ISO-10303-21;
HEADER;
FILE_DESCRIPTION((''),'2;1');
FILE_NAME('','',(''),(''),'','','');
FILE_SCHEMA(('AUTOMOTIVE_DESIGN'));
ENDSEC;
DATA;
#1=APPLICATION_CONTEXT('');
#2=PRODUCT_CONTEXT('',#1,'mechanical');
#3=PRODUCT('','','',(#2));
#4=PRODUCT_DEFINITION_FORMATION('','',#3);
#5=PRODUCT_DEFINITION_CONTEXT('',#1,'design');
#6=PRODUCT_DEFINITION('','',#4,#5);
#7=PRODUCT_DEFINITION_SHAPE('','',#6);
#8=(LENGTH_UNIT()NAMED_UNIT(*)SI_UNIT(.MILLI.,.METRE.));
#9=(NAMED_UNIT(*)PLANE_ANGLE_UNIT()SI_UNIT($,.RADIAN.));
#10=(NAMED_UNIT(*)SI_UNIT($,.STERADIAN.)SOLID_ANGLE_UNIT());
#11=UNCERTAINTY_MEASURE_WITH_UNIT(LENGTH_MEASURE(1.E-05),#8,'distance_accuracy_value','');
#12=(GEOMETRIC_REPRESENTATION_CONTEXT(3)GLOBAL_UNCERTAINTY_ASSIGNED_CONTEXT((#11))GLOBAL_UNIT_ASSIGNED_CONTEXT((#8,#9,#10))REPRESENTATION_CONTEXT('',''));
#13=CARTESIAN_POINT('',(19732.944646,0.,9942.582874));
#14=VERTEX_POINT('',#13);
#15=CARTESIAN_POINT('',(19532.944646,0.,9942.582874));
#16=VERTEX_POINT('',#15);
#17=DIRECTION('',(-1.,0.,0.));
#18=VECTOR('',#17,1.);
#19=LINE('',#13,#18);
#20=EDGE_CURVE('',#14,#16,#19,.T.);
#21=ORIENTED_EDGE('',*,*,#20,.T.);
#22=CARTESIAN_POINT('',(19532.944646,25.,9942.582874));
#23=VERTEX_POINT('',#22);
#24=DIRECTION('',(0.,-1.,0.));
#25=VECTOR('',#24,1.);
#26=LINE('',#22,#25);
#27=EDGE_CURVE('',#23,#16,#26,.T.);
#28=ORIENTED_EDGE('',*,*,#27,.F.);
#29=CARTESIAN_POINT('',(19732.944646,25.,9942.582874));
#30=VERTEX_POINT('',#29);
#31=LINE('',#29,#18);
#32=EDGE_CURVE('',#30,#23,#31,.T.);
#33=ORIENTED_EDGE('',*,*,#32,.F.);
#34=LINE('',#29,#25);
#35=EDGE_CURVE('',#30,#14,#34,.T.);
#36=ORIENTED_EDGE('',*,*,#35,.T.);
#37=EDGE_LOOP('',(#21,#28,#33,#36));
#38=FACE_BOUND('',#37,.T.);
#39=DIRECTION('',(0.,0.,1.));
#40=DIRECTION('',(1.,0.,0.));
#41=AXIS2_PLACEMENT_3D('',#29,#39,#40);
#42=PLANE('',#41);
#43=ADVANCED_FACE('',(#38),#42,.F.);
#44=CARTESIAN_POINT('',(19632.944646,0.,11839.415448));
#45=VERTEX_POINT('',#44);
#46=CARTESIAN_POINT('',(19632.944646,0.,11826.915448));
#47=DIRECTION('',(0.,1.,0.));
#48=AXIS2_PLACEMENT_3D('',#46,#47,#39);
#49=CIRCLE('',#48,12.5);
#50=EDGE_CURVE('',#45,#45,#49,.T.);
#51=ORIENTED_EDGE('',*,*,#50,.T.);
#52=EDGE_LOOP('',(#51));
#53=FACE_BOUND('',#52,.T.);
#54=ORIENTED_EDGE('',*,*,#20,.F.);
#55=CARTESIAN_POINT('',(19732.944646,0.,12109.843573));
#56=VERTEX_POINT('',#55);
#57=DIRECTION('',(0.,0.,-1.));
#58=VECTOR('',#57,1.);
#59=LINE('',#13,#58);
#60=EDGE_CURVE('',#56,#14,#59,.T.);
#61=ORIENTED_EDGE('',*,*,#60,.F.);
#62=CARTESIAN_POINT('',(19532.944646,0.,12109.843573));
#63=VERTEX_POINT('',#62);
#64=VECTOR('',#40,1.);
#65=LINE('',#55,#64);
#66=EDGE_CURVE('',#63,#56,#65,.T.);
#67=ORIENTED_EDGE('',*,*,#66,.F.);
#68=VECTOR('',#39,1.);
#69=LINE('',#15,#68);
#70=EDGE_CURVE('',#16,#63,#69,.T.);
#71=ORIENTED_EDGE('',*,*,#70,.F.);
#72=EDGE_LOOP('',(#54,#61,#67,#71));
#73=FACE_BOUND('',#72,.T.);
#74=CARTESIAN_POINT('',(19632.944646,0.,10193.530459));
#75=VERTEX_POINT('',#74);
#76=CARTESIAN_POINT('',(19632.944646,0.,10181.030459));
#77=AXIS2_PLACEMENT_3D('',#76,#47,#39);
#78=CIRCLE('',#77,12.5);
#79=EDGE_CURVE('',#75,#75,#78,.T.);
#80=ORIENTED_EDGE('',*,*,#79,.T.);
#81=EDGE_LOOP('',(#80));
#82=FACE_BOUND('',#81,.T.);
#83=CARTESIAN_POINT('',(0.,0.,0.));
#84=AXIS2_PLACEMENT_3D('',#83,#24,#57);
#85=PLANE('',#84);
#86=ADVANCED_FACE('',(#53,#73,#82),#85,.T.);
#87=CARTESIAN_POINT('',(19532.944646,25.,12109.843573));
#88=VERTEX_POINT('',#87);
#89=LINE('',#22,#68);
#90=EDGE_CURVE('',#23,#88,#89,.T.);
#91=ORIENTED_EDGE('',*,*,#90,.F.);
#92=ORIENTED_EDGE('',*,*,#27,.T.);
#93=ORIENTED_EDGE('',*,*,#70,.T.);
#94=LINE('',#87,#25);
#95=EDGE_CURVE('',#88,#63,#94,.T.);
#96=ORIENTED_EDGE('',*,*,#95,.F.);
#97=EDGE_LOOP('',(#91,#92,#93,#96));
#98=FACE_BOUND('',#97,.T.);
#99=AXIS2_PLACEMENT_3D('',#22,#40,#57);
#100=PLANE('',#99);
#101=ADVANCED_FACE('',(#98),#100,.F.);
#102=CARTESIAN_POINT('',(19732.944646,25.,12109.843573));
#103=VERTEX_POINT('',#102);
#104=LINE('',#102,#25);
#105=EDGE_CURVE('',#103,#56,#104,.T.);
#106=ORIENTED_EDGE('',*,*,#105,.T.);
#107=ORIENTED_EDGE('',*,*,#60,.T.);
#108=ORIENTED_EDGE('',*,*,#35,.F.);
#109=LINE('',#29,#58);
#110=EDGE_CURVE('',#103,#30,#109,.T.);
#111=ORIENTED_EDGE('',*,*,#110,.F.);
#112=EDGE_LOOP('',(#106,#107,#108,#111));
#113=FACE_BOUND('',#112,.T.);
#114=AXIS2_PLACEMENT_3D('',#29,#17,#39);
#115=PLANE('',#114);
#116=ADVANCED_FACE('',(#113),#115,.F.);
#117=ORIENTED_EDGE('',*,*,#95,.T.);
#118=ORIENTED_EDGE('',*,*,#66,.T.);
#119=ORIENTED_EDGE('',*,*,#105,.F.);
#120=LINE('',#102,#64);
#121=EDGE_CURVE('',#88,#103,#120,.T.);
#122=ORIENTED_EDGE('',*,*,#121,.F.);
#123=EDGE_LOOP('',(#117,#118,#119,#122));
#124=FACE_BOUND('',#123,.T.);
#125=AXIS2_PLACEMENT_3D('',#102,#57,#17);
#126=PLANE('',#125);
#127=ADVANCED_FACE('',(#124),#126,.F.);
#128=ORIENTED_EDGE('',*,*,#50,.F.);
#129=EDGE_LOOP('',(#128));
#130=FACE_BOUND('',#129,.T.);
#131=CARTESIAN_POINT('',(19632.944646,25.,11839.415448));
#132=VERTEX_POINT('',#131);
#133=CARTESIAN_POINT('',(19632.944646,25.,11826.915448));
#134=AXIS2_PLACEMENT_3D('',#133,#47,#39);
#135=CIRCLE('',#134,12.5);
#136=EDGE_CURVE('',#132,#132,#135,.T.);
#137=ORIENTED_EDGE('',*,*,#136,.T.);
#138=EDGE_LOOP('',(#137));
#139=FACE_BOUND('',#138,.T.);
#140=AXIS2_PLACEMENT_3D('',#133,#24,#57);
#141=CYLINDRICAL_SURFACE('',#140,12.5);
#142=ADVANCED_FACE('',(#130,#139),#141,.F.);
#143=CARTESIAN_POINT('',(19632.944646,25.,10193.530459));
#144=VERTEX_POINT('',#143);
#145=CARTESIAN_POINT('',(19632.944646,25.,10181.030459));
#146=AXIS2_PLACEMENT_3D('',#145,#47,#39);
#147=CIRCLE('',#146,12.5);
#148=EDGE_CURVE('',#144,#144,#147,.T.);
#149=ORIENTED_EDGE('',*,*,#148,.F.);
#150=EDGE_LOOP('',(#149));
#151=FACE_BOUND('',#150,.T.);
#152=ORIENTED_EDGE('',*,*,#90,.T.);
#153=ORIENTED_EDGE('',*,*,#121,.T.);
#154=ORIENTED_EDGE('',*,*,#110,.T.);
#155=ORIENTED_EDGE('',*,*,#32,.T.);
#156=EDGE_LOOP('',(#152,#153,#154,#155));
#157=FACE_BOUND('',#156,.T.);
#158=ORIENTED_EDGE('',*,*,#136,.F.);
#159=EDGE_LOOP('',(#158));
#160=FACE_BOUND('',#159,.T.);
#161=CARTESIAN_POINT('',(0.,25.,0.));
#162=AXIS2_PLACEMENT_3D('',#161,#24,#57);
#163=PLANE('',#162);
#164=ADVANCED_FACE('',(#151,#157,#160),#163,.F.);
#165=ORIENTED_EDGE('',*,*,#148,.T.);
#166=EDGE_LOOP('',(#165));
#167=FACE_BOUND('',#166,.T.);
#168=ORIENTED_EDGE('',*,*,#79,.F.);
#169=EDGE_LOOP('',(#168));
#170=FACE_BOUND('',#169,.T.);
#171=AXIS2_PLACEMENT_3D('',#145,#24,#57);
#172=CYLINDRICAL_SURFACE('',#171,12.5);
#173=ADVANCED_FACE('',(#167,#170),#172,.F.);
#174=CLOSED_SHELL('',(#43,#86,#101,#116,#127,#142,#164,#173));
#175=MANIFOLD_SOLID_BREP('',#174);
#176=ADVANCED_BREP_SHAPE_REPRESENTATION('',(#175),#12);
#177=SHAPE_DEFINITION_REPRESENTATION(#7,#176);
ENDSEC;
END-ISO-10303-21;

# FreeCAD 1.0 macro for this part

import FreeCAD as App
import Part
import Sketcher

V = App.Vector

doc = App.newDocument("Part")
params = doc.addObject("Spreadsheet::Sheet", "Params")
for row, (alias, value) in enumerate([
    ("sketch1_diameter", "25 mm"),
    ("sketch1_width", "200 mm"),
    ("pad1_length", "25 mm"),
    ("sketch2_diameter", "25 mm"),
    ("sketch2_width", "200 mm"),
    ("pad2_length", "25 mm"),
    ("sketch3_diameter", "25 mm"),
    ("sketch3_width", "200 mm"),
    ("pad3_length", "25 mm"),
    ("sketch4_diameter", "25 mm"),
    ("sketch4_width", "200 mm"),
    ("pad4_length", "25 mm"),
    ("sketch5_diameter", "25 mm"),
    ("sketch5_width", "200 mm"),
    ("pad5_length", "25 mm"),
    ("pad6_length", "26 mm"),
], start=1):
    params.set(f"A{row}", alias)
    params.set(f"B{row}", "=" + value)
    params.setAlias(f"B{row}", alias)

body = doc.addObject("PartDesign::Body", "Body")

sketch1 = body.newObject("Sketcher::SketchObject", "Sketch")
sketch1.AttachmentSupport = (doc.getObject("XZ_Plane"), [""])
sketch1.MapMode = "FlatFace"
sketch1.addGeometry([
    Part.LineSegment(V(23033, 9943, 0), V(23033, 12876, 0)),
    Part.LineSegment(V(23033, 12876, 0), V(23233, 12876, 0)),
    Part.LineSegment(V(23233, 12876, 0), V(23233, 9943, 0)),
    Part.LineSegment(V(23233, 9943, 0), V(23033, 9943, 0)),
    Part.Circle(V(23133, 12678, 0), V(0, 0, 1), 12),
    Part.Circle(V(23133, 10181, 0), V(0, 0, 1), 12),
], False)
sketch1.addConstraint([
    Sketcher.Constraint("Coincident", 0, 2, 1, 1),
    Sketcher.Constraint("Coincident", 1, 2, 2, 1),
    Sketcher.Constraint("Coincident", 2, 2, 3, 1),
    Sketcher.Constraint("Coincident", 3, 2, 0, 1),
    Sketcher.Constraint("Vertical", 0),
    Sketcher.Constraint("Horizontal", 1),
    Sketcher.Constraint("Vertical", 2),
    Sketcher.Constraint("Horizontal", 3),
    Sketcher.Constraint("Equal", 4, 5),
    Sketcher.Constraint("Vertical", 4, 3, 5, 3),
    Sketcher.Constraint("Diameter", 4, 25.0),
    Sketcher.Constraint("DistanceX", 1, 1, 1, 2, 200.0),
    Sketcher.Constraint("DistanceX", 0, 2, 4, 3, 100.0),
    Sketcher.Constraint("DistanceY", 0, 1, 0, 2, 2933.573874),
    Sketcher.Constraint("DistanceY", -1, 1, 5, 3, 10181.030459),
    Sketcher.Constraint("DistanceY", -1, 1, 0, 2, 12876.156748),
    Sketcher.Constraint("DistanceY", 2, 2, 4, 3, 2735.506741),
    Sketcher.Constraint("DistanceX", -1, 1, 4, 3, 23132.944646),
])
sketch1.setExpression("Constraints[10]", "Params.sketch1_diameter")
sketch1.setExpression("Constraints[11]", "Params.sketch1_width")
pad1 = body.newObject("PartDesign::Pad", "Pad")
pad1.Profile = sketch1
pad1.setExpression("Length", "Params.pad1_length")
pad1.Reversed = True
body2 = doc.addObject("PartDesign::Body", "Body001")

sketch2 = body2.newObject("Sketcher::SketchObject", "Sketch001")
sketch2.AttachmentSupport = (doc.getObject("XZ_Plane001"), [""])
sketch2.MapMode = "FlatFace"
sketch2.addGeometry([
    Part.LineSegment(V(21933, 9943, 0), V(21933, 12834, 0)),
    Part.LineSegment(V(21933, 12834, 0), V(22133, 12834, 0)),
    Part.LineSegment(V(22133, 12834, 0), V(22133, 9943, 0)),
    Part.LineSegment(V(22133, 9943, 0), V(21933, 9943, 0)),
    Part.Circle(V(22033, 12621, 0), V(0, 0, 1), 12),
    Part.Circle(V(22033, 10181, 0), V(0, 0, 1), 12),
], False)
sketch2.addConstraint([
    Sketcher.Constraint("Coincident", 0, 2, 1, 1),
    Sketcher.Constraint("Coincident", 1, 2, 2, 1),
    Sketcher.Constraint("Coincident", 2, 2, 3, 1),
    Sketcher.Constraint("Coincident", 3, 2, 0, 1),
    Sketcher.Constraint("Vertical", 0),
    Sketcher.Constraint("Horizontal", 1),
    Sketcher.Constraint("Vertical", 2),
    Sketcher.Constraint("Horizontal", 3),
    Sketcher.Constraint("Equal", 4, 5),
    Sketcher.Constraint("Vertical", 4, 3, 5, 3),
    Sketcher.Constraint("Diameter", 4, 25.0),
    Sketcher.Constraint("DistanceX", 1, 1, 1, 2, 200.0),
    Sketcher.Constraint("DistanceX", 0, 2, 4, 3, 100.0),
    Sketcher.Constraint("DistanceY", 0, 1, 0, 2, 2891.00092),
    Sketcher.Constraint("DistanceY", -1, 1, 5, 3, 10181.030459),
    Sketcher.Constraint("DistanceY", 4, 3, 0, 2, 212.355509),
    Sketcher.Constraint("DistanceX", -1, 1, 4, 3, 22032.944646),
    Sketcher.Constraint("DistanceY", -1, 1, 4, 3, 12621.228285),
])
sketch2.setExpression("Constraints[10]", "Params.sketch2_diameter")
sketch2.setExpression("Constraints[11]", "Params.sketch2_width")
pad2 = body2.newObject("PartDesign::Pad", "Pad001")
pad2.Profile = sketch2
pad2.setExpression("Length", "Params.pad2_length")
pad2.Reversed = True
body3 = doc.addObject("PartDesign::Body", "Body002")

sketch3 = body3.newObject("Sketcher::SketchObject", "Sketch002")
sketch3.AttachmentSupport = (doc.getObject("XZ_Plane002"), [""])
sketch3.MapMode = "FlatFace"
sketch3.addGeometry([
    Part.LineSegment(V(20733, 9943, 0), V(20733, 12599, 0)),
    Part.LineSegment(V(20733, 12599, 0), V(20933, 12599, 0)),
    Part.LineSegment(V(20933, 12599, 0), V(20933, 9943, 0)),
    Part.LineSegment(V(20933, 9943, 0), V(20733, 9943, 0)),
    Part.Circle(V(20833, 12349, 0), V(0, 0, 1), 12),
    Part.Circle(V(20833, 10181, 0), V(0, 0, 1), 12),
], False)
sketch3.addConstraint([
    Sketcher.Constraint("Coincident", 0, 2, 1, 1),
    Sketcher.Constraint("Coincident", 1, 2, 2, 1),
    Sketcher.Constraint("Coincident", 2, 2, 3, 1),
    Sketcher.Constraint("Coincident", 3, 2, 0, 1),
    Sketcher.Constraint("Vertical", 0),
    Sketcher.Constraint("Horizontal", 1),
    Sketcher.Constraint("Vertical", 2),
    Sketcher.Constraint("Horizontal", 3),
    Sketcher.Constraint("Equal", 4, 5),
    Sketcher.Constraint("Vertical", 4, 3, 5, 3),
    Sketcher.Constraint("Diameter", 4, 25.0),
    Sketcher.Constraint("DistanceX", 1, 1, 1, 2, 200.0),
    Sketcher.Constraint("DistanceX", 0, 2, 4, 3, 100.0),
    Sketcher.Constraint("DistanceY", 0, 1, 0, 2, 2656.849672),
    Sketcher.Constraint("DistanceY", -1, 1, 4, 3, 12348.754241),
    Sketcher.Constraint("DistanceY", -1, 1, 5, 3, 10181.030459),
    Sketcher.Constraint("DistanceX", -1, 1, 4, 3, 20832.944646),
    Sketcher.Constraint("DistanceY", -1, 1, 0, 2, 12599.432546),
])
sketch3.setExpression("Constraints[10]", "Params.sketch3_diameter")
sketch3.setExpression("Constraints[11]", "Params.sketch3_width")
pad3 = body3.newObject("PartDesign::Pad", "Pad002")
pad3.Profile = sketch3
pad3.setExpression("Length", "Params.pad3_length")
pad3.Reversed = True
body4 = doc.addObject("PartDesign::Body", "Body003")

sketch4 = body4.newObject("Sketcher::SketchObject", "Sketch003")
sketch4.AttachmentSupport = (doc.getObject("XZ_Plane003"), [""])
sketch4.MapMode = "FlatFace"
sketch4.addGeometry([
    Part.LineSegment(V(19533, 9943, 0), V(19533, 12110, 0)),
    Part.LineSegment(V(19533, 12110, 0), V(19733, 12110, 0)),
    Part.LineSegment(V(19733, 12110, 0), V(19733, 9943, 0)),
    Part.LineSegment(V(19733, 9943, 0), V(19533, 9943, 0)),
    Part.Circle(V(19633, 11827, 0), V(0, 0, 1), 12),
    Part.Circle(V(19633, 10181, 0), V(0, 0, 1), 12),
], False)
sketch4.addConstraint([
    Sketcher.Constraint("Coincident", 0, 2, 1, 1),
    Sketcher.Constraint("Coincident", 1, 2, 2, 1),
    Sketcher.Constraint("Coincident", 2, 2, 3, 1),
    Sketcher.Constraint("Coincident", 3, 2, 0, 1),
    Sketcher.Constraint("Vertical", 0),
    Sketcher.Constraint("Horizontal", 1),
    Sketcher.Constraint("Vertical", 2),
    Sketcher.Constraint("Horizontal", 3),
    Sketcher.Constraint("Equal", 4, 5),
    Sketcher.Constraint("Vertical", 4, 3, 5, 3),
    Sketcher.Constraint("Diameter", 4, 25.0),
    Sketcher.Constraint("DistanceX", 1, 1, 1, 2, 200.0),
    Sketcher.Constraint("DistanceX", 0, 2, 4, 3, 100.0),
    Sketcher.Constraint("DistanceY", 0, 1, 0, 2, 2167.260699),
    Sketcher.Constraint("DistanceY", -1, 1, 4, 3, 11826.915448),
    Sketcher.Constraint("DistanceY", -1, 1, 5, 3, 10181.030459),
    Sketcher.Constraint("DistanceX", -1, 1, 4, 3, 19632.944646),
    Sketcher.Constraint("DistanceY", -1, 1, 0, 2, 12109.843573),
])
sketch4.setExpression("Constraints[10]", "Params.sketch4_diameter")
sketch4.setExpression("Constraints[11]", "Params.sketch4_width")
pad4 = body4.newObject("PartDesign::Pad", "Pad003")
pad4.Profile = sketch4
pad4.setExpression("Length", "Params.pad4_length")
pad4.Reversed = True
body5 = doc.addObject("PartDesign::Body", "Body004")

sketch5 = body5.newObject("Sketcher::SketchObject", "Sketch004")
sketch5.AttachmentSupport = (doc.getObject("XZ_Plane004"), [""])
sketch5.MapMode = "FlatFace"
sketch5.addGeometry([
    Part.LineSegment(V(18703, 9943, 0), V(18703, 11636, 0)),
    Part.LineSegment(V(18703, 11636, 0), V(18903, 11636, 0)),
    Part.LineSegment(V(18903, 11636, 0), V(18903, 9943, 0)),
    Part.LineSegment(V(18903, 9943, 0), V(18703, 9943, 0)),
    Part.Circle(V(18803, 11284, 0), V(0, 0, 1), 12),
    Part.Circle(V(18803, 10181, 0), V(0, 0, 1), 12),
], False)
sketch5.addConstraint([
    Sketcher.Constraint("Coincident", 0, 2, 1, 1),
    Sketcher.Constraint("Coincident", 1, 2, 2, 1),
    Sketcher.Constraint("Coincident", 2, 2, 3, 1),
    Sketcher.Constraint("Coincident", 3, 2, 0, 1),
    Sketcher.Constraint("Vertical", 0),
    Sketcher.Constraint("Horizontal", 1),
    Sketcher.Constraint("Vertical", 2),
    Sketcher.Constraint("Horizontal", 3),
    Sketcher.Constraint("Equal", 4, 5),
    Sketcher.Constraint("Vertical", 4, 3, 5, 3),
    Sketcher.Constraint("Diameter", 4, 25.0),
    Sketcher.Constraint("DistanceX", 1, 1, 1, 2, 200.0),
    Sketcher.Constraint("DistanceX", 0, 2, 4, 3, 100.0),
    Sketcher.Constraint("DistanceY", 5, 3, 0, 2, 1455.188998),
    Sketcher.Constraint("DistanceY", 0, 1, 0, 2, 1693.636583),
    Sketcher.Constraint("DistanceY", -1, 1, 4, 3, 11283.669779),
    Sketcher.Constraint("DistanceY", -1, 1, 5, 3, 10181.030459),
    Sketcher.Constraint("DistanceX", -1, 1, 4, 3, 18802.944646),
])
sketch5.setExpression("Constraints[10]", "Params.sketch5_diameter")
sketch5.setExpression("Constraints[11]", "Params.sketch5_width")
pad5 = body5.newObject("PartDesign::Pad", "Pad004")
pad5.Profile = sketch5
pad5.setExpression("Length", "Params.pad5_length")
pad5.Reversed = True
body6 = doc.addObject("PartDesign::Body", "Body005")
body6.AllowCompound = True

sketch6 = body6.newObject("Sketcher::SketchObject", "Sketch005")
sketch6.AttachmentSupport = (doc.getObject("XZ_Plane005"), [""])
sketch6.MapMode = "FlatFace"
sketch6.addGeometry([
    Part.LineSegment(V(17795, 8351, 0), V(17795, 13286, 0)),
    Part.LineSegment(V(17795, 13286, 0), V(19135, 13286, 0)),
    Part.LineSegment(V(19135, 13286, 0), V(19135, 8351, 0)),
    Part.LineSegment(V(19135, 8351, 0), V(17795, 8351, 0)),
    Part.LineSegment(V(20051, 7488, 0), V(20051, 14503, 0)),
    Part.LineSegment(V(20051, 14503, 0), V(24898, 14503, 0)),
    Part.LineSegment(V(24898, 14503, 0), V(24898, 7488, 0)),
    Part.LineSegment(V(24898, 7488, 0), V(20051, 7488, 0)),
    Part.LineSegment(V(20721, 13868, 0), V(20228, 13868, 0)),
    Part.LineSegment(V(20228, 13868, 0), V(20228, 12987, 0)),
    Part.LineSegment(V(20228, 12987, 0), V(20721, 12987, 0)),
    Part.LineSegment(V(20721, 12987, 0), V(20721, 13868, 0)),
], False)
sketch6.addConstraint([
    Sketcher.Constraint("Coincident", 0, 2, 1, 1),
    Sketcher.Constraint("Coincident", 1, 2, 2, 1),
    Sketcher.Constraint("Coincident", 2, 2, 3, 1),
    Sketcher.Constraint("Coincident", 3, 2, 0, 1),
    Sketcher.Constraint("Coincident", 4, 2, 5, 1),
    Sketcher.Constraint("Coincident", 5, 2, 6, 1),
    Sketcher.Constraint("Coincident", 6, 2, 7, 1),
    Sketcher.Constraint("Coincident", 7, 2, 4, 1),
    Sketcher.Constraint("Coincident", 8, 2, 9, 1),
    Sketcher.Constraint("Coincident", 9, 2, 10, 1),
    Sketcher.Constraint("Coincident", 10, 2, 11, 1),
    Sketcher.Constraint("Coincident", 11, 2, 8, 1),
    Sketcher.Constraint("Vertical", 0),
    Sketcher.Constraint("Horizontal", 1),
    Sketcher.Constraint("Vertical", 2),
    Sketcher.Constraint("Horizontal", 3),
    Sketcher.Constraint("Vertical", 4),
    Sketcher.Constraint("Horizontal", 5),
    Sketcher.Constraint("Vertical", 6),
    Sketcher.Constraint("Horizontal", 7),
    Sketcher.Constraint("Horizontal", 8),
    Sketcher.Constraint("Vertical", 9),
    Sketcher.Constraint("Horizontal", 10),
    Sketcher.Constraint("Vertical", 11),
    Sketcher.Constraint("DistanceX", 5, 1, 5, 2, 4846.909181),
    Sketcher.Constraint("DistanceX", 8, 2, 8, 1, 493.50348),
    Sketcher.Constraint("DistanceY", 4, 1, 4, 2, 7014.799469),
    Sketcher.Constraint("DistanceY", 1, 2, 8, 2, 581.629102),
    Sketcher.Constraint("DistanceX", 1, 1, 1, 2, 1339.509446),
    Sketcher.Constraint("DistanceY", 0, 1, 0, 2, 4935.034802),
    Sketcher.Constraint("DistanceY", 9, 2, 9, 1, 881.256215),
    Sketcher.Constraint("DistanceY", -1, 1, 0, 2, 13286.445548),
    Sketcher.Constraint("DistanceX", -1, 1, 1, 2, 19134.931719),
    Sketcher.Constraint("DistanceX", 0, 2, 4, 2, 2256.01591),
    Sketcher.Constraint("DistanceY", 2, 2, 4, 2, 6151.168379),
    Sketcher.Constraint("DistanceX", -1, 1, 8, 2, 20227.689425),
])
pad6 = body6.newObject("PartDesign::Pad", "Pad005")
pad6.Profile = sketch6
pad6.setExpression("Length", "Params.pad6_length")
pad6.Reversed = True
doc.recompute()

body7 = doc.addObject("PartDesign::Body", "Body006")
body7.BaseFeature = body6
boolean = body.newObject("PartDesign::Boolean", "Boolean")
boolean.Type = "Cut"
boolean.addObjects([body7])
doc.recompute()

body8 = doc.addObject("PartDesign::Body", "Body007")
body8.BaseFeature = body6
boolean2 = body2.newObject("PartDesign::Boolean", "Boolean001")
boolean2.Type = "Cut"
boolean2.addObjects([body8])
doc.recompute()

body9 = doc.addObject("PartDesign::Body", "Body008")
body9.BaseFeature = body6
boolean3 = body3.newObject("PartDesign::Boolean", "Boolean002")
boolean3.Type = "Cut"
boolean3.addObjects([body9])
doc.recompute()

boolean4 = body5.newObject("PartDesign::Boolean", "Boolean003")
boolean4.Type = "Cut"
boolean4.addObjects([body6])

doc.recompute()
